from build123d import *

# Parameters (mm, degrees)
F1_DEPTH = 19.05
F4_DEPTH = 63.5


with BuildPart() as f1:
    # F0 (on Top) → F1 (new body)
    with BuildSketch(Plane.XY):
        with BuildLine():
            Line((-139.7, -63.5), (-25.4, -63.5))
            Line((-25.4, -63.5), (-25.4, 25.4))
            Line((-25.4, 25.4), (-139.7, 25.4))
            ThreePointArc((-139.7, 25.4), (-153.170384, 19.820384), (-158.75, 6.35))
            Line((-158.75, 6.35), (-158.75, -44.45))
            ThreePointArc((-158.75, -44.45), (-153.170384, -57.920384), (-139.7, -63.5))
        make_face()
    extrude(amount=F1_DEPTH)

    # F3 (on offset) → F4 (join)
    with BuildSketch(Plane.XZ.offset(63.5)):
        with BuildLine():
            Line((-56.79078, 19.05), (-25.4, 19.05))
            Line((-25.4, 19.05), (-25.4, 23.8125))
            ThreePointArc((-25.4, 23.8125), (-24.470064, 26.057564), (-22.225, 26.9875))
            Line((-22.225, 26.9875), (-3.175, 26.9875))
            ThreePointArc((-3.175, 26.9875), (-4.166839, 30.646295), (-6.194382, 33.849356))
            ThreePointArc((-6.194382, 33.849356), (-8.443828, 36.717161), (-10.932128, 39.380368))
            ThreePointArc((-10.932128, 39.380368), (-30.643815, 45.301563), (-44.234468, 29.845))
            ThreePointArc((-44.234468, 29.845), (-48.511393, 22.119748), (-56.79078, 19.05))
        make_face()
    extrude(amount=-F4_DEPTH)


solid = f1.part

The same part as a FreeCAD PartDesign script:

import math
import FreeCAD as App
import Part
import Sketcher

V = App.Vector
Q = App.Units.Quantity

doc = App.newDocument("Part")
body = doc.addObject("PartDesign::Body", "Body")

# Sketch on XY plane
sketch1 = body.newObject("Sketcher::SketchObject", "Sketch")
sketch1.AttachmentSupport = (doc.getObject("XY_Plane"), [""])
sketch1.MapMode = "FlatFace"
sketch1.addGeometry([
    Part.LineSegment(V(-139.7, -63.5, 0), V(-25.4, -63.5, 0)),  # 0
    Part.LineSegment(V(-25.4, -63.5, 0), V(-25.4, 25.4, 0)),  # 1
    Part.LineSegment(V(-25.4, 25.4, 0), V(-139.7, 25.4, 0)),  # 2
    Part.ArcOfCircle(Part.Circle(V(-139.699999, 6.349999, 0), V(0, 0, 1), 19.050001), math.radians(90.000002), math.radians(179.999998)),  # 3
    Part.LineSegment(V(-158.75, 6.35, 0), V(-158.75, -44.45, 0)),  # 4
    Part.ArcOfCircle(Part.Circle(V(-139.699999, -44.449999, 0), V(0, 0, 1), 19.050001), math.radians(-179.999998), math.radians(-90.000002)),  # 5
], False)
sketch1.addConstraint([
    Sketcher.Constraint("Coincident", 0, 2, 1, 1),
    Sketcher.Constraint("Coincident", 1, 2, 2, 1),
    Sketcher.Constraint("Tangent", 2, 2, 3, 1),
    Sketcher.Constraint("Tangent", 3, 2, 4, 1),
    Sketcher.Constraint("Tangent", 4, 2, 5, 1),
    Sketcher.Constraint("Tangent", 5, 2, 0, 1),
    Sketcher.Constraint("Horizontal", 0),
    Sketcher.Constraint("Vertical", 1),
    Sketcher.Constraint("Horizontal", 2),
    Sketcher.Constraint("Vertical", 4),
    Sketcher.Constraint("Equal", 3, 5),
    Sketcher.Constraint("DistanceY", 4, 2, 4, 1, Q("2 in")),
    Sketcher.Constraint("Radius", 3, Q("0.75 in")),
    Sketcher.Constraint("DistanceX", 0, 1, 0, 2, Q("4.5 in")),
    Sketcher.Constraint("DistanceX", 0, 2, -1, 1, Q("1 in")),
    Sketcher.Constraint("DistanceY", -1, 1, 1, 2, Q("1 in")),
])
pad1 = body.newObject("PartDesign::Pad", "Pad")
pad1.Profile = sketch1
pad1.Length = Q("0.75 in")

# Sketch on XZ plane
sketch2 = body.newObject("Sketcher::SketchObject", "Sketch001")
sketch2.AttachmentSupport = (doc.getObject("XZ_Plane"), [""])
sketch2.MapMode = "FlatFace"
sketch2.AttachmentOffset = App.Placement(V(0, 0, 2.5 * 25.4), App.Rotation())
sketch2.addGeometry([
    Part.LineSegment(V(-56.79078, 19.05, 0), V(-25.4, 19.05, 0)),  # 0
    Part.LineSegment(V(-25.4, 19.05, 0), V(-25.4, 23.8125, 0)),  # 1
    Part.ArcOfCircle(Part.Circle(V(-22.225, 23.8125, 0), V(0, 0, 1), 3.175), math.radians(90.000002), math.radians(179.999998)),  # 2
    Part.LineSegment(V(-22.225, 26.9875, 0), V(-3.175, 26.9875, 0)),  # 3
    Part.ArcOfCircle(Part.Circle(V(-15.791242, 25.531278, 0), V(0, 0, 1), 12.700006), math.radians(6.584194), math.radians(40.917109)),  # 4
    Part.ArcOfCircle(Part.Circle(V(-40.523147, 9.238706, 0), V(0, 0, 1), 42.239179), math.radians(35.637135), math.radians(45.528164)),  # 5
    Part.ArcOfCircle(Part.Circle(V(-25.4, 26.9875, 0), V(0, 0, 1), 19.05), math.radians(40.582648), math.radians(171.373074)),  # 6
    Part.ArcOfCircle(Part.Circle(V(-56.79078, 31.749999, 0), V(0, 0, 1), 12.699999), math.radians(-90.000002), math.radians(-8.626924)),  # 7
], False)
sketch2.addConstraint([
    Sketcher.Constraint("Coincident", 0, 2, 1, 1),
    Sketcher.Constraint("Tangent", 1, 2, 2, 2),
    Sketcher.Constraint("Tangent", 2, 1, 3, 1),
    Sketcher.Constraint("Coincident", 3, 2, 4, 1),
    Sketcher.Constraint("Coincident", 4, 2, 5, 1),
    Sketcher.Constraint("Coincident", 5, 2, 6, 1),
    Sketcher.Constraint("Tangent", 6, 2, 7, 2),
    Sketcher.Constraint("Tangent", 7, 1, 0, 1),
    Sketcher.Constraint("Horizontal", 0),
    Sketcher.Constraint("Vertical", 1),
    Sketcher.Constraint("Horizontal", 3),
    Sketcher.Constraint("Horizontal", 6, 3, 2, 1),
    Sketcher.Constraint("Vertical", 6, 3, 0, 2),
    Sketcher.Constraint("Radius", 7, Q("0.5 in")),
    Sketcher.Constraint("Radius", 6, Q("0.75 in")),
    Sketcher.Constraint("DistanceX", 6, 3, -1, 1, Q("1 in")),
    Sketcher.Constraint("Radius", 2, Q("0.125 in")),
    Sketcher.Constraint("DistanceX", 3, 1, 3, 2, Q("0.75 in")),
    Sketcher.Constraint("DistanceY", 1, 1, 1, 2, Q("0.1875 in")),
    Sketcher.Constraint("DistanceY", -1, 1, 7, 3, Q("1.25 in")),
    Sketcher.Constraint("Radius", 5, 42.239179),
    Sketcher.Constraint("Radius", 4, 12.700006),
    Sketcher.Constraint("DistanceX", 5, 2, -1, 1, 10.932128),
    Sketcher.Constraint("DistanceY", 4, 3, 7, 3, 6.218721),
    Sketcher.Constraint("DistanceX", 4, 3, 4, 2, 9.59686),
])
pad2 = body.newObject("PartDesign::Pad", "Pad001")
pad2.Profile = sketch2
pad2.Length = Q("2.5 in")
pad2.Reversed = True

doc.recompute()
